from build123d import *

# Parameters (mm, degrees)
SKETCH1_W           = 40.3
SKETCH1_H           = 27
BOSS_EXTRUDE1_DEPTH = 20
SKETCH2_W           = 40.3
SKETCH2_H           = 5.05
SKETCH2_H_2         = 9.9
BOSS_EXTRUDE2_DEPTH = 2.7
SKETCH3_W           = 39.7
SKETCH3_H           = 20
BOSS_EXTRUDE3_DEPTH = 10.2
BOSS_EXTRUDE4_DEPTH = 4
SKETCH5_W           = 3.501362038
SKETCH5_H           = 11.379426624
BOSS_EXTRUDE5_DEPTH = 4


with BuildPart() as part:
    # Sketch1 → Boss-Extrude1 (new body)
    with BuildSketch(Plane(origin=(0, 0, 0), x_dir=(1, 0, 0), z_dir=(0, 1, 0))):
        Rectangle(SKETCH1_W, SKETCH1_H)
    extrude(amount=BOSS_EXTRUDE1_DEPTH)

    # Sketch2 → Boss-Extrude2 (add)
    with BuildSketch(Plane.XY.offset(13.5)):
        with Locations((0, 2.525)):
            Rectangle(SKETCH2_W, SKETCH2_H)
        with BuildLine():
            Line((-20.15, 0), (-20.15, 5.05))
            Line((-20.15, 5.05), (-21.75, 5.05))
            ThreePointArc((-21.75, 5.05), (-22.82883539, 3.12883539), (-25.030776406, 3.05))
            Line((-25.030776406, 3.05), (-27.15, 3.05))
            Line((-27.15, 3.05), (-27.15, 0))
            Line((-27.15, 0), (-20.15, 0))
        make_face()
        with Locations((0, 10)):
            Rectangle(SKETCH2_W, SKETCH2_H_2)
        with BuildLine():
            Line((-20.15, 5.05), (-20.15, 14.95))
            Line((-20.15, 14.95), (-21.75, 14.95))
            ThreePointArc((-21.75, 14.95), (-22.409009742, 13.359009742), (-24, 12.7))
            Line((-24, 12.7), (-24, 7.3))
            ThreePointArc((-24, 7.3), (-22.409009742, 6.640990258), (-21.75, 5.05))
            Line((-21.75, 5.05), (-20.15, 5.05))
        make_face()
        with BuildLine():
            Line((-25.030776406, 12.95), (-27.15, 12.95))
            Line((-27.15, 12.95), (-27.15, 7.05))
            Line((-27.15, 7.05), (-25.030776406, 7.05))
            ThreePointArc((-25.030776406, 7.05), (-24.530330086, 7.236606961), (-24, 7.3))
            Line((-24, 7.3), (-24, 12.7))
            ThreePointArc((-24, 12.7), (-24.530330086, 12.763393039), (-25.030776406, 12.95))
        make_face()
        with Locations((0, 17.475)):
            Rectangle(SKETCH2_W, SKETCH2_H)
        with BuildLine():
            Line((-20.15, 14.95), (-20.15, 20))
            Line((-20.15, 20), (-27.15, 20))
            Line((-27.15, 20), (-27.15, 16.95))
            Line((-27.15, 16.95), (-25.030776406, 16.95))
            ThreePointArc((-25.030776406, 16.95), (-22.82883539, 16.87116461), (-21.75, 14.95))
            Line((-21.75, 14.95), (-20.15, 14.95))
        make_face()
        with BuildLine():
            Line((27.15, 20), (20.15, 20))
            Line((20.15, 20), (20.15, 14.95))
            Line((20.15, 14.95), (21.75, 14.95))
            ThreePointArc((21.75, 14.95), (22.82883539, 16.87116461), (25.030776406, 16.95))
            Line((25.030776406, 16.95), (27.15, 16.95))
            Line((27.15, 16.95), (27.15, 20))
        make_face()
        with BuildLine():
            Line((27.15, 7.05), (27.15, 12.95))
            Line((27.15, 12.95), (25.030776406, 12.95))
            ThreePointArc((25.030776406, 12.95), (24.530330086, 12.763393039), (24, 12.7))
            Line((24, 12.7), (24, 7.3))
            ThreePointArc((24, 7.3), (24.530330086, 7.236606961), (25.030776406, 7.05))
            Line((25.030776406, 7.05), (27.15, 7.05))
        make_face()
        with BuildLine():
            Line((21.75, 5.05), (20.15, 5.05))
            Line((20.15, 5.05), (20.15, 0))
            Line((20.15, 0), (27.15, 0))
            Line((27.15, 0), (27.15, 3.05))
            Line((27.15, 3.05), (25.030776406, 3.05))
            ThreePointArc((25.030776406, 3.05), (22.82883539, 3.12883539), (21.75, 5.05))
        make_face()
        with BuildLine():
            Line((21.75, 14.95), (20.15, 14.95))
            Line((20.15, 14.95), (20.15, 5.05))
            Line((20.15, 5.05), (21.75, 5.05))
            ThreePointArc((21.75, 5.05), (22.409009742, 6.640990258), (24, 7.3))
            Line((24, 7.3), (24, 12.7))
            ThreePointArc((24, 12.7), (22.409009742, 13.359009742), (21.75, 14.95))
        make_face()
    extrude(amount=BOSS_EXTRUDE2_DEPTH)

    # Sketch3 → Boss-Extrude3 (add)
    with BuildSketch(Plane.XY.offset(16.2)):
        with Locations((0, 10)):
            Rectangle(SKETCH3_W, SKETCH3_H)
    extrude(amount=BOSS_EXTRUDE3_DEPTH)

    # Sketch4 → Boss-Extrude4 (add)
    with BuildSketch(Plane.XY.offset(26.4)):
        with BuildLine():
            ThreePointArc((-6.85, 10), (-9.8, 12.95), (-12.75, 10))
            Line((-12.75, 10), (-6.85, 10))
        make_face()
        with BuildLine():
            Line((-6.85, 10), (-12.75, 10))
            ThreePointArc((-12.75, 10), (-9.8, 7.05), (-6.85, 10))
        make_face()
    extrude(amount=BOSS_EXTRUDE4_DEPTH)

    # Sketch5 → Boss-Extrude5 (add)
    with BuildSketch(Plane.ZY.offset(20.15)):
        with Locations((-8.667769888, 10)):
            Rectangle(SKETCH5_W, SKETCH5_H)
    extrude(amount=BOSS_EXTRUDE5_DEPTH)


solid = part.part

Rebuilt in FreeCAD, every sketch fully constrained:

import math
import FreeCAD as App
import Part
import Sketcher
Q = App.Units.Quantity

doc = App.newDocument("Part")
params = doc.addObject("Spreadsheet::Sheet", "Params")
for row, (alias, value) in enumerate([
    ("sketch1_height", "27 mm"),
    ("sketch1_width", "40.3 mm"),
    ("pad1_length", "20 mm"),
    ("sketch2_radius", "2.25 mm"),
    ("sketch2_width", "54.3 mm"),
    ("sketch2_height", "5.9 mm"),
    ("sketch2_height2", "2 mm"),
    ("pad2_length", "2.7 mm"),
    ("sketch3_height", "20 mm"),
    ("sketch3_width", "39.7 mm"),
    ("pad3_length", "10.2 mm"),
    ("sketch4_diameter", "5.9 mm"),
    ("pad4_length", "4 mm"),
    ("pad5_length", "4 mm"),
], start=1):
    params.set(f"A{row}", alias)
    params.set(f"B{row}", "=" + value)
    params.setAlias(f"B{row}", alias)

body = doc.addObject("PartDesign::Body", "Body")

# Sketch on XZ plane
sketch1 = body.newObject("Sketcher::SketchObject", "Sketch")
sketch1.AttachmentSupport = (doc.getObject("XZ_Plane"), [""])
sketch1.MapMode = "FlatFace"
sketch1.addGeometry(Part.LineSegment(App.Vector(-20, -14, 0), App.Vector(-20, 14, 0)), False)
sketch1.addGeometry(Part.LineSegment(App.Vector(-20, 14, 0), App.Vector(20, 14, 0)), False)
sketch1.addGeometry(Part.LineSegment(App.Vector(20, 14, 0), App.Vector(20, -14, 0)), False)
sketch1.addGeometry(Part.LineSegment(App.Vector(20, -14, 0), App.Vector(-20, -14, 0)), False)
sketch1.addConstraint(Sketcher.Constraint("Coincident", 0, 2, 1, 1))
sketch1.addConstraint(Sketcher.Constraint("Coincident", 1, 2, 2, 1))
sketch1.addConstraint(Sketcher.Constraint("Coincident", 2, 2, 3, 1))
sketch1.addConstraint(Sketcher.Constraint("Coincident", 3, 2, 0, 1))
sketch1.addConstraint(Sketcher.Constraint("Vertical", 0))
sketch1.addConstraint(Sketcher.Constraint("Horizontal", 1))
sketch1.addConstraint(Sketcher.Constraint("Vertical", 2))
sketch1.addConstraint(Sketcher.Constraint("Horizontal", 3))
sketch1.addConstraint(Sketcher.Constraint("Symmetric", 0, 2, 2, 2, -1, 1))
sketch1.addConstraint(Sketcher.Constraint("DistanceY", 0, 1, 0, 2, Q("27 mm")))
sketch1.addConstraint(Sketcher.Constraint("DistanceX", 1, 1, 1, 2, Q("40.3 mm")))
sketch1.setExpression("Constraints[9]", "Params.sketch1_height")
sketch1.setExpression("Constraints[10]", "Params.sketch1_width")
pad1 = body.newObject("PartDesign::Pad", "Pad")
pad1.Profile = sketch1
pad1.setExpression("Length", "Params.pad1_length")
pad1.Reversed = True

# Sketch on XY plane
sketch2 = body.newObject("Sketcher::SketchObject", "Sketch001")
sketch2.AttachmentSupport = (doc.getObject("XY_Plane"), [""])
sketch2.MapMode = "FlatFace"
sketch2.AttachmentOffset = App.Placement(App.Vector(0, 0, 13.5), App.Rotation())
sketch2.addGeometry(Part.ArcOfCircle(Part.Circle(App.Vector(24, 15, 0), App.Vector(0, 0, 1), 2.2), math.radians(63), math.radians(180)), False)
sketch2.addGeometry(Part.LineSegment(App.Vector(25, 16.9, 0), App.Vector(27.1, 16.9, 0)), False)
sketch2.addGeometry(Part.LineSegment(App.Vector(27.1, 16.9, 0), App.Vector(27.1, 20, 0)), False)
sketch2.addGeometry(Part.LineSegment(App.Vector(27.1, 20, 0), App.Vector(-27.1, 20, 0)), False)
sketch2.addGeometry(Part.LineSegment(App.Vector(-27.1, 20, 0), App.Vector(-27.1, 16.9, 0)), False)
sketch2.addGeometry(Part.LineSegment(App.Vector(-27.1, 16.9, 0), App.Vector(-25, 16.9, 0)), False)
sketch2.addGeometry(Part.ArcOfCircle(Part.Circle(App.Vector(-24, 15, 0), App.Vector(0, 0, 1), 2.2), math.radians(0), math.radians(117)), False)
sketch2.addGeometry(Part.ArcOfCircle(Part.Circle(App.Vector(-24, 14.9, 0), App.Vector(0, 0, 1), 2.2), math.radians(-90), math.radians(0)), False)
sketch2.addGeometry(Part.ArcOfCircle(Part.Circle(App.Vector(-24, 14.9, 0), App.Vector(0, 0, 1), 2.2), math.radians(-117), math.radians(-90)), False)
sketch2.addGeometry(Part.LineSegment(App.Vector(-25, 12.9, 0), App.Vector(-27.1, 12.9, 0)), False)
sketch2.addGeometry(Part.LineSegment(App.Vector(-27.1, 12.9, 0), App.Vector(-27.1, 7, 0)), False)
sketch2.addGeometry(Part.LineSegment(App.Vector(-27.1, 7, 0), App.Vector(-25, 7, 0)), False)
sketch2.addGeometry(Part.ArcOfCircle(Part.Circle(App.Vector(-24, 5.1, 0), App.Vector(0, 0, 1), 2.2), math.radians(90), math.radians(117)), False)
sketch2.addGeometry(Part.ArcOfCircle(Part.Circle(App.Vector(-24, 5.1, 0), App.Vector(0, 0, 1), 2.2), math.radians(0), math.radians(90)), False)
sketch2.addGeometry(Part.ArcOfCircle(Part.Circle(App.Vector(-24, 5, 0), App.Vector(0, 0, 1), 2.2), math.radians(-117), math.radians(0)), False)
sketch2.addGeometry(Part.LineSegment(App.Vector(-25, 3, 0), App.Vector(-27.1, 3, 0)), False)
sketch2.addGeometry(Part.LineSegment(App.Vector(-27.1, 3, 0), App.Vector(-27.1, 0, 0)), False)
sketch2.addGeometry(Part.LineSegment(App.Vector(-27.1, 0, 0), App.Vector(27.1, 0, 0)), False)
sketch2.addGeometry(Part.LineSegment(App.Vector(27.1, 0, 0), App.Vector(27.1, 3, 0)), False)
sketch2.addGeometry(Part.LineSegment(App.Vector(27.1, 3, 0), App.Vector(25, 3, 0)), False)
sketch2.addGeometry(Part.ArcOfCircle(Part.Circle(App.Vector(24, 5, 0), App.Vector(0, 0, 1), 2.2), math.radians(180), math.radians(297)), False)
sketch2.addGeometry(Part.ArcOfCircle(Part.Circle(App.Vector(24, 5.1, 0), App.Vector(0, 0, 1), 2.2), math.radians(90), math.radians(180)), False)
sketch2.addGeometry(Part.ArcOfCircle(Part.Circle(App.Vector(24, 5.1, 0), App.Vector(0, 0, 1), 2.2), math.radians(63), math.radians(90)), False)
sketch2.addGeometry(Part.LineSegment(App.Vector(25, 7, 0), App.Vector(27.1, 7, 0)), False)
sketch2.addGeometry(Part.LineSegment(App.Vector(27.1, 7, 0), App.Vector(27.1, 12.9, 0)), False)
sketch2.addGeometry(Part.LineSegment(App.Vector(27.1, 12.9, 0), App.Vector(25, 12.9, 0)), False)
sketch2.addGeometry(Part.ArcOfCircle(Part.Circle(App.Vector(24, 14.9, 0), App.Vector(0, 0, 1), 2.2), math.radians(-90), math.radians(-63)), False)
sketch2.addGeometry(Part.ArcOfCircle(Part.Circle(App.Vector(24, 14.9, 0), App.Vector(0, 0, 1), 2.2), math.radians(180), math.radians(270)), False)
sketch2.addConstraint(Sketcher.Constraint("Coincident", 0, 1, 1, 1))
sketch2.addConstraint(Sketcher.Constraint("Coincident", 1, 2, 2, 1))
sketch2.addConstraint(Sketcher.Constraint("Coincident", 2, 2, 3, 1))
sketch2.addConstraint(Sketcher.Constraint("Coincident", 3, 2, 4, 1))
sketch2.addConstraint(Sketcher.Constraint("Coincident", 4, 2, 5, 1))
sketch2.addConstraint(Sketcher.Constraint("Coincident", 5, 2, 6, 2))
sketch2.addConstraint(Sketcher.Constraint("Tangent", 6, 1, 7, 2))
sketch2.addConstraint(Sketcher.Constraint("Tangent", 7, 1, 8, 2))
sketch2.addConstraint(Sketcher.Constraint("Coincident", 8, 1, 9, 1))
sketch2.addConstraint(Sketcher.Constraint("Coincident", 9, 2, 10, 1))
sketch2.addConstraint(Sketcher.Constraint("Coincident", 10, 2, 11, 1))
sketch2.addConstraint(Sketcher.Constraint("Coincident", 11, 2, 12, 2))
sketch2.addConstraint(Sketcher.Constraint("Tangent", 12, 1, 13, 2))
sketch2.addConstraint(Sketcher.Constraint("Tangent", 13, 1, 14, 2))
sketch2.addConstraint(Sketcher.Constraint("Coincident", 14, 1, 15, 1))
sketch2.addConstraint(Sketcher.Constraint("Coincident", 15, 2, 16, 1))
sketch2.addConstraint(Sketcher.Constraint("Coincident", 16, 2, 17, 1))
sketch2.addConstraint(Sketcher.Constraint("Coincident", 17, 2, 18, 1))
sketch2.addConstraint(Sketcher.Constraint("Coincident", 18, 2, 19, 1))
sketch2.addConstraint(Sketcher.Constraint("Coincident", 19, 2, 20, 2))
sketch2.addConstraint(Sketcher.Constraint("Tangent", 20, 1, 21, 2))
sketch2.addConstraint(Sketcher.Constraint("Tangent", 21, 1, 22, 2))
sketch2.addConstraint(Sketcher.Constraint("Coincident", 22, 1, 23, 1))
sketch2.addConstraint(Sketcher.Constraint("Coincident", 23, 2, 24, 1))
sketch2.addConstraint(Sketcher.Constraint("Coincident", 24, 2, 25, 1))
sketch2.addConstraint(Sketcher.Constraint("Coincident", 25, 2, 26, 2))
sketch2.addConstraint(Sketcher.Constraint("Tangent", 26, 1, 27, 2))
sketch2.addConstraint(Sketcher.Constraint("Tangent", 27, 1, 0, 2))
sketch2.addConstraint(Sketcher.Constraint("Horizontal", 1))
sketch2.addConstraint(Sketcher.Constraint("Vertical", 2))
sketch2.addConstraint(Sketcher.Constraint("Horizontal", 3))
sketch2.addConstraint(Sketcher.Constraint("Vertical", 4))
sketch2.addConstraint(Sketcher.Constraint("Horizontal", 5))
sketch2.addConstraint(Sketcher.Constraint("Horizontal", 9))
sketch2.addConstraint(Sketcher.Constraint("Vertical", 10))
sketch2.addConstraint(Sketcher.Constraint("Horizontal", 11))
sketch2.addConstraint(Sketcher.Constraint("Horizontal", 15))
sketch2.addConstraint(Sketcher.Constraint("Vertical", 16))
sketch2.addConstraint(Sketcher.Constraint("Horizontal", 17))
sketch2.addConstraint(Sketcher.Constraint("Vertical", 18))
sketch2.addConstraint(Sketcher.Constraint("Horizontal", 19))
sketch2.addConstraint(Sketcher.Constraint("Horizontal", 23))
sketch2.addConstraint(Sketcher.Constraint("Vertical", 24))
sketch2.addConstraint(Sketcher.Constraint("Horizontal", 25))
sketch2.addConstraint(Sketcher.Constraint("Coincident", 8, 3, 6, 3))
sketch2.addConstraint(Sketcher.Constraint("Coincident", 14, 3, 12, 3))
sketch2.addConstraint(Sketcher.Constraint("Coincident", 22, 3, 20, 3))
sketch2.addConstraint(Sketcher.Constraint("Coincident", 26, 3, 0, 3))
sketch2.addConstraint(Sketcher.Constraint("Equal", 0, 6))
sketch2.addConstraint(Sketcher.Constraint("Equal", 8, 12))
sketch2.addConstraint(Sketcher.Constraint("Equal", 14, 20))
sketch2.addConstraint(Sketcher.Constraint("Symmetric", 16, 2, 17, 2, -1, 1))
sketch2.addConstraint(Sketcher.Constraint("Symmetric", 0, 3, 6, 3, -2))
sketch2.addConstraint(Sketcher.Constraint("Symmetric", 12, 3, 20, 3, -2))
sketch2.addConstraint(Sketcher.Constraint("Symmetric", 1, 2, 4, 2, -2))
sketch2.addConstraint(Sketcher.Constraint("Symmetric", 10, 2, 23, 2, -2))
sketch2.addConstraint(Sketcher.Constraint("Horizontal", 27, 3, 6, 1))
sketch2.addConstraint(Sketcher.Constraint("Horizontal", 22, 3, 13, 1))
sketch2.addConstraint(Sketcher.Constraint("Horizontal", 15, 2, 18, 2))
sketch2.addConstraint(Sketcher.Constraint("Horizontal", 13, 1, 20, 1))
sketch2.addConstraint(Sketcher.Constraint("Horizontal", 9, 2, 24, 2))
sketch2.addConstraint(Sketcher.Constraint("Horizontal", 6, 1, 27, 1))
sketch2.addConstraint(Sketcher.Constraint("Vertical", 8, 3, 12, 3))
sketch2.addConstraint(Sketcher.Constraint("Vertical", 14, 3, 7, 1))
sketch2.addConstraint(Sketcher.Constraint("Vertical", 5, 2, 8, 1))
sketch2.addConstraint(Sketcher.Constraint("Vertical", 4, 2, 9, 2))
sketch2.addConstraint(Sketcher.Constraint("Vertical", 8, 1, 11, 2))
sketch2.addConstraint(Sketcher.Constraint("Vertical", 7, 1, 12, 1))
sketch2.addConstraint(Sketcher.Constraint("Vertical", 11, 2, 14, 1))
sketch2.addConstraint(Sketcher.Constraint("Vertical", 10, 2, 15, 2))
sketch2.addConstraint(Sketcher.Constraint("Vertical", 27, 3, 21, 1))
sketch2.addConstraint(Sketcher.Constraint("Vertical", 21, 1, 26, 1))
sketch2.addConstraint(Sketcher.Constraint("Equal", 4, 16))
sketch2.addConstraint(Sketcher.Constraint("Radius", 0, Q("2.25 mm")))
sketch2.addConstraint(Sketcher.Constraint("DistanceX", 3, 2, 3, 1, Q("54.3 mm")))
sketch2.addConstraint(Sketcher.Constraint("DistanceY", 10, 2, 10, 1, Q("5.9 mm")))
sketch2.addConstraint(Sketcher.Constraint("DistanceX", -1, 1, 0, 3, Q("24 mm")))
sketch2.addConstraint(Sketcher.Constraint("DistanceY", -1, 1, 2, 2, Q("20 mm")))
sketch2.addConstraint(Sketcher.Constraint("DistanceY", 0, 3, 0, 1, Q("2 mm")))
sketch2.setExpression("Constraints[73]", "Params.sketch2_radius")
sketch2.setExpression("Constraints[74]", "Params.sketch2_width")
sketch2.setExpression("Constraints[75]", "Params.sketch2_height")
sketch2.setExpression("Constraints[78]", "Params.sketch2_height2")
pad2 = body.newObject("PartDesign::Pad", "Pad001")
pad2.Profile = sketch2
pad2.setExpression("Length", "Params.pad2_length")

# Sketch on XY plane
sketch3 = body.newObject("Sketcher::SketchObject", "Sketch002")
sketch3.AttachmentSupport = (doc.getObject("XY_Plane"), [""])
sketch3.MapMode = "FlatFace"
sketch3.AttachmentOffset = App.Placement(App.Vector(0, 0, 16.2), App.Rotation())
sketch3.addGeometry(Part.LineSegment(App.Vector(-20, 20, 0), App.Vector(-20, 0, 0)), False)
sketch3.addGeometry(Part.LineSegment(App.Vector(-20, 0, 0), App.Vector(20, 0, 0)), False)
sketch3.addGeometry(Part.LineSegment(App.Vector(20, 0, 0), App.Vector(20, 20, 0)), False)
sketch3.addGeometry(Part.LineSegment(App.Vector(20, 20, 0), App.Vector(-20, 20, 0)), False)
sketch3.addConstraint(Sketcher.Constraint("Coincident", 0, 2, 1, 1))
sketch3.addConstraint(Sketcher.Constraint("Coincident", 1, 2, 2, 1))
sketch3.addConstraint(Sketcher.Constraint("Coincident", 2, 2, 3, 1))
sketch3.addConstraint(Sketcher.Constraint("Coincident", 3, 2, 0, 1))
sketch3.addConstraint(Sketcher.Constraint("Vertical", 0))
sketch3.addConstraint(Sketcher.Constraint("Horizontal", 1))
sketch3.addConstraint(Sketcher.Constraint("Vertical", 2))
sketch3.addConstraint(Sketcher.Constraint("Horizontal", 3))
sketch3.addConstraint(Sketcher.Constraint("Symmetric", 0, 2, 1, 2, -1, 1))
sketch3.addConstraint(Sketcher.Constraint("DistanceY", 0, 2, 0, 1, Q("20 mm")))
sketch3.addConstraint(Sketcher.Constraint("DistanceX", 1, 1, 1, 2, Q("39.7 mm")))
sketch3.setExpression("Constraints[9]", "Params.sketch3_height")
sketch3.setExpression("Constraints[10]", "Params.sketch3_width")
pad3 = body.newObject("PartDesign::Pad", "Pad002")
pad3.Profile = sketch3
pad3.setExpression("Length", "Params.pad3_length")

# Sketch on XY plane
sketch4 = body.newObject("Sketcher::SketchObject", "Sketch003")
sketch4.AttachmentSupport = (doc.getObject("XY_Plane"), [""])
sketch4.MapMode = "FlatFace"
sketch4.AttachmentOffset = App.Placement(App.Vector(0, 0, 26.4), App.Rotation())
sketch4.addGeometry(Part.Circle(App.Vector(-9.8, 10, 0), App.Vector(0, 0, 1), 3), False)
sketch4.addConstraint(Sketcher.Constraint("Diameter", 0, Q("5.9 mm")))
sketch4.addConstraint(Sketcher.Constraint("DistanceY", -1, 1, 0, 3, Q("10 mm")))
sketch4.addConstraint(Sketcher.Constraint("DistanceX", 0, 3, -1, 1, Q("9.8 mm")))
sketch4.setExpression("Constraints[0]", "Params.sketch4_diameter")
pad4 = body.newObject("PartDesign::Pad", "Pad003")
pad4.Profile = sketch4
pad4.setExpression("Length", "Params.pad4_length")

# Sketch on YZ plane
sketch5 = body.newObject("Sketcher::SketchObject", "Sketch004")
sketch5.AttachmentSupport = (doc.getObject("YZ_Plane"), [""])
sketch5.MapMode = "FlatFace"
sketch5.AttachmentOffset = App.Placement(App.Vector(0, 0, -20.15), App.Rotation())
sketch5.addGeometry(Part.LineSegment(App.Vector(15.7, -10.4, 0), App.Vector(4.3, -10.4, 0)), False)
sketch5.addGeometry(Part.LineSegment(App.Vector(4.3, -10.4, 0), App.Vector(4.3, -6.9, 0)), False)
sketch5.addGeometry(Part.LineSegment(App.Vector(4.3, -6.9, 0), App.Vector(15.7, -6.9, 0)), False)
sketch5.addGeometry(Part.LineSegment(App.Vector(15.7, -6.9, 0), App.Vector(15.7, -10.4, 0)), False)
sketch5.addConstraint(Sketcher.Constraint("Coincident", 0, 2, 1, 1))
sketch5.addConstraint(Sketcher.Constraint("Coincident", 1, 2, 2, 1))
sketch5.addConstraint(Sketcher.Constraint("Coincident", 2, 2, 3, 1))
sketch5.addConstraint(Sketcher.Constraint("Coincident", 3, 2, 0, 1))
sketch5.addConstraint(Sketcher.Constraint("Horizontal", 0))
sketch5.addConstraint(Sketcher.Constraint("Vertical", 1))
sketch5.addConstraint(Sketcher.Constraint("Horizontal", 2))
sketch5.addConstraint(Sketcher.Constraint("Vertical", 3))
sketch5.addConstraint(Sketcher.Constraint("DistanceX", 0, 2, 0, 1, Q("11.379427 mm")))
sketch5.addConstraint(Sketcher.Constraint("DistanceY", 1, 1, 1, 2, Q("3.501362 mm")))
sketch5.addConstraint(Sketcher.Constraint("DistanceY", 0, 2, -1, 1, Q("10.418451 mm")))
sketch5.addConstraint(Sketcher.Constraint("DistanceX", -1, 1, 0, 2, Q("4.310287 mm")))
pad5 = body.newObject("PartDesign::Pad", "Pad004")
pad5.Profile = sketch5
pad5.setExpression("Length", "Params.pad5_length")
pad5.Reversed = True

doc.recompute()
